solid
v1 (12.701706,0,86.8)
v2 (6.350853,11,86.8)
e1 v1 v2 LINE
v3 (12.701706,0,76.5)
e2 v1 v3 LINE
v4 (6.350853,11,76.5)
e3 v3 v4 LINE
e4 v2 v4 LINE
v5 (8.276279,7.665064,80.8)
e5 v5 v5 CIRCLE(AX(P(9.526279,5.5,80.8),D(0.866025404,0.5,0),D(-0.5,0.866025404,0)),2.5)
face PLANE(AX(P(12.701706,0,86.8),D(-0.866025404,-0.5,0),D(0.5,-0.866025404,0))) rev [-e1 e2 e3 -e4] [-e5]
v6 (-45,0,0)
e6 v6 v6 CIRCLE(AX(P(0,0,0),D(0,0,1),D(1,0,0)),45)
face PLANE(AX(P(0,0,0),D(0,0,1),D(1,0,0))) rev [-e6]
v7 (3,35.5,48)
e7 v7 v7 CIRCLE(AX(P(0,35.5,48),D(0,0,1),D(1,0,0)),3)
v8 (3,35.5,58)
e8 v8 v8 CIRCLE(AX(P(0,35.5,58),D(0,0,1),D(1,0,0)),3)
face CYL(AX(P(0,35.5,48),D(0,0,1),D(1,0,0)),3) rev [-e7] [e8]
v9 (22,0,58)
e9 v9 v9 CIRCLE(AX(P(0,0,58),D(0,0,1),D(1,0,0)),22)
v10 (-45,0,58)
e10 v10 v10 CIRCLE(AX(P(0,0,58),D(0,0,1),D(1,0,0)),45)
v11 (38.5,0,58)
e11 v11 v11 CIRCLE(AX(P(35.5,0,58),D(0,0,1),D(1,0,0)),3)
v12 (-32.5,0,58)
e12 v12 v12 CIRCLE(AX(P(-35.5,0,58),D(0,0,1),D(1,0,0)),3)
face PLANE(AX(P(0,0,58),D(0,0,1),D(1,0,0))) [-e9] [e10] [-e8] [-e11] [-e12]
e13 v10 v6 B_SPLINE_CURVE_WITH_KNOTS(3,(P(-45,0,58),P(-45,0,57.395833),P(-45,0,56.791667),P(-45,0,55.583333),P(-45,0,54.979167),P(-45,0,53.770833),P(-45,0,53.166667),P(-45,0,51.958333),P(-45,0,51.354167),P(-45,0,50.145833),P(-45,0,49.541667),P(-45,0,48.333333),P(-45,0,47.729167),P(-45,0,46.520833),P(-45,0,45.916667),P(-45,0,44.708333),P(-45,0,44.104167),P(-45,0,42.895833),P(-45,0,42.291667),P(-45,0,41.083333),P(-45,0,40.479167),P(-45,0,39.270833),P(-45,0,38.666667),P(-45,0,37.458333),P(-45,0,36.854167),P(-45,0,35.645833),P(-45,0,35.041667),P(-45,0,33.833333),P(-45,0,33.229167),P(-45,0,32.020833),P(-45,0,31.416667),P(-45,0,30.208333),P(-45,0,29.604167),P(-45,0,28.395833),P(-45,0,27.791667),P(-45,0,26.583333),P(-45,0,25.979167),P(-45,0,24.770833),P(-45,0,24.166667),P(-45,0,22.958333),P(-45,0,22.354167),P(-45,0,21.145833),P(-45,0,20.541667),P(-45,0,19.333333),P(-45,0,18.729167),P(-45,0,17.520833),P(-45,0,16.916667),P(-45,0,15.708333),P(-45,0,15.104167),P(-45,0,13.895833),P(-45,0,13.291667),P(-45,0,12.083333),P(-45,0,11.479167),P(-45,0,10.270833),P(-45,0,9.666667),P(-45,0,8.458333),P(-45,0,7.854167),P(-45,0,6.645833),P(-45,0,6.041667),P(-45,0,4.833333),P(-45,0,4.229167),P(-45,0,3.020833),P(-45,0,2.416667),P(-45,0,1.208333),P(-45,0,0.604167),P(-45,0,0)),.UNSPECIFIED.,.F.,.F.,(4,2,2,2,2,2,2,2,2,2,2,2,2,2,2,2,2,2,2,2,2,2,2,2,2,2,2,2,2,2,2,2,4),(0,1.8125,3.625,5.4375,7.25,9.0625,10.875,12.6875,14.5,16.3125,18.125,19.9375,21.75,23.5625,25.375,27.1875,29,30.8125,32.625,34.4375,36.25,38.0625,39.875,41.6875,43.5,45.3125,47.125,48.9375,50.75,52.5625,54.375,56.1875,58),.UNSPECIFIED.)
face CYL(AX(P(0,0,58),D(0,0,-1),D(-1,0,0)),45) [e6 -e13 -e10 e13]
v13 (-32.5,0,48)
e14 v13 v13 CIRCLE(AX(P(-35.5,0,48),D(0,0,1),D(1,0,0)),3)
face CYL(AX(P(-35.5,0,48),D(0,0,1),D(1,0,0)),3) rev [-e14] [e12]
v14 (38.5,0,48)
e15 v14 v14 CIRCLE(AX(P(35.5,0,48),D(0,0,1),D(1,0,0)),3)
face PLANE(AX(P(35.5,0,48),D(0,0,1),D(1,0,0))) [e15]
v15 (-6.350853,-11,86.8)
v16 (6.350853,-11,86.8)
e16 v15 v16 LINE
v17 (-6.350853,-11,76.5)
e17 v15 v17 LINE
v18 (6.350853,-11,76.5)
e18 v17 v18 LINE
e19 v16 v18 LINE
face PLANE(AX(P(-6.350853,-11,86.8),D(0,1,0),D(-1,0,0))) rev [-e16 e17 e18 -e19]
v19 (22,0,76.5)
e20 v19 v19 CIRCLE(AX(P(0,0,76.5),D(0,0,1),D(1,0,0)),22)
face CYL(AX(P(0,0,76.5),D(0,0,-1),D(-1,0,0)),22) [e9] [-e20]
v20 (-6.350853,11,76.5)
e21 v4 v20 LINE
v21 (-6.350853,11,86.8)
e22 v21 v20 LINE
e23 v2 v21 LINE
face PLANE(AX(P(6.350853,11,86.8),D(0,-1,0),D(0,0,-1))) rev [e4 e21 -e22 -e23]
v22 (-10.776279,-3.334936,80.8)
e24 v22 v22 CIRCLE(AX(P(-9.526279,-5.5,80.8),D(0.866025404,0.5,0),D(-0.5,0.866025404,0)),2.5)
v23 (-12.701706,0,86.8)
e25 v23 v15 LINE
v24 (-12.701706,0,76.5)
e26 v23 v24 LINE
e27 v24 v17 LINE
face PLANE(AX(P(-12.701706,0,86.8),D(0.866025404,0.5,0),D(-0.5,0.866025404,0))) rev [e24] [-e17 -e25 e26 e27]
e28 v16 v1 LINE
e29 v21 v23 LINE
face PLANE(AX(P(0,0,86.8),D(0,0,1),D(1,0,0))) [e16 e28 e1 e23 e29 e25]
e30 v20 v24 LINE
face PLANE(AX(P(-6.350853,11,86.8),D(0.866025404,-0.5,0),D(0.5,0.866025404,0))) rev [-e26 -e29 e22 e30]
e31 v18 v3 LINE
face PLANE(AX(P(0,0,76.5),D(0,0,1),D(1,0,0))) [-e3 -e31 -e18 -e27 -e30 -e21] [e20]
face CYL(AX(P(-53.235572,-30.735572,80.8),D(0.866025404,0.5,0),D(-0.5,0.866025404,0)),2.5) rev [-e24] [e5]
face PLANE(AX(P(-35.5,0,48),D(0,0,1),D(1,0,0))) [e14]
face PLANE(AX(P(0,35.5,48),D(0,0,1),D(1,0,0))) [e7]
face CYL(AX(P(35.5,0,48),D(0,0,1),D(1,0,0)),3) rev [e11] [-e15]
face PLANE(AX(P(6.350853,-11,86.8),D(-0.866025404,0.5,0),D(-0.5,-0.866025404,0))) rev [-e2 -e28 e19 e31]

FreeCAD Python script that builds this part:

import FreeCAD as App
import Part
import Sketcher

V = App.Vector
Q = App.Units.Quantity


def add_polygon(sketch, points):
    """Adds a closed chain of lines whose ends are joined by coincident constraints."""
    first, n = sketch.GeometryCount, len(points)
    for a, b in zip(points, points[1:] + points[:1]):
        sketch.addGeometry(Part.LineSegment(App.Vector(*a, 0), App.Vector(*b, 0)), False)
    for i in range(n):
        sketch.addConstraint(Sketcher.Constraint("Coincident", first + i, 2, first + (i + 1) % n, 1))

doc = App.newDocument("Part")
body = doc.addObject("PartDesign::Body", "Body")

sketch1 = body.newObject("Sketcher::SketchObject", "Sketch")
sketch1.AttachmentSupport = (doc.getObject("XY_Plane"), [""])
sketch1.MapMode = "FlatFace"
sketch1.addGeometry(Part.Circle(V(0, 0, 0), V(0, 0, 1), 45), False)
sketch1.addConstraint([
    Sketcher.Constraint("Coincident", 0, 3, -1, 1),
    Sketcher.Constraint("Diameter", 0, 90.0),
])
pad1 = body.newObject("PartDesign::Pad", "Pad")
pad1.Profile = sketch1
pad1.Length = 58

sketch2 = body.newObject("Sketcher::SketchObject", "Sketch001")
sketch2.AttachmentSupport = (doc.getObject("XY_Plane"), [""])
sketch2.MapMode = "FlatFace"
sketch2.AttachmentOffset = App.Placement(V(0, 0, 58), App.Rotation())
sketch2.addGeometry(Part.Circle(V(0, 0, 0), V(0, 0, 1), 22), False)
sketch2.addConstraint([
    Sketcher.Constraint("Coincident", 0, 3, -1, 1),
    Sketcher.Constraint("Diameter", 0, 44.0),
])
pad2 = body.newObject("PartDesign::Pad", "Pad001")
pad2.Profile = sketch2
pad2.Length = 18.5

sketch3 = body.newObject("Sketcher::SketchObject", "Sketch002")
sketch3.AttachmentSupport = (doc.getObject("XY_Plane"), [""])
sketch3.MapMode = "FlatFace"
sketch3.AttachmentOffset = App.Placement(V(0, 0, 76.5), App.Rotation())
add_polygon(sketch3, [(12.701706, 0), (6.350853, 11), (-6.350853, 11), (-12.701706, 0), (-6.350853, -11), (6.350853, -11)])
sketch3.addConstraint([
    Sketcher.Constraint("Horizontal", 1),
    Sketcher.Constraint("Horizontal", 4),
    Sketcher.Constraint("Symmetric", 0, 2, 3, 2, -1, 1),
    Sketcher.Constraint("Symmetric", 2, 2, 5, 2, -1, 1),
    Sketcher.Constraint("PointOnObject", 2, 2, -1),
    Sketcher.Constraint("Parallel", 2, 5),
    Sketcher.Constraint("Vertical", 1, 2, 3, 2),
    Sketcher.Constraint("Angle", 0, Q("120 deg")),
    Sketcher.Constraint("DistanceY", -1, 1, 0, 2, 11.0),
    Sketcher.Constraint("DistanceX", 1, 2, 1, 1, 12.701706),
])
pad3 = body.newObject("PartDesign::Pad", "Pad002")
pad3.Profile = sketch3
pad3.Length = 10.3

sketch4 = body.newObject("Sketcher::SketchObject", "Sketch003")
sketch4.Placement = App.Placement(V(9.526279, 5.5, 0), App.Rotation(V(0, 0, -1), V(-0.5, 0.866025404, 0), V(0.866025404, 0.5, 0), "ZXY"))
sketch4.addGeometry(Part.Circle(V(-80.8, 0, 0), V(0, 0, 1), 2.5), False)
sketch4.addConstraint([
    Sketcher.Constraint("PointOnObject", 0, 3, -1),
    Sketcher.Constraint("Diameter", 0, 5.0),
    Sketcher.Constraint("DistanceX", 0, 3, -1, 1, 80.8),
])
pocket1 = body.newObject("PartDesign::Pocket", "Pocket")
pocket1.Profile = sketch4
pocket1.Type = "ThroughAll"

sketch5 = body.newObject("Sketcher::SketchObject", "Sketch004")
sketch5.AttachmentSupport = (doc.getObject("XY_Plane"), [""])
sketch5.MapMode = "FlatFace"
sketch5.AttachmentOffset = App.Placement(V(0, 0, 58), App.Rotation())
sketch5.addGeometry([
    Part.Circle(V(-35.5, 0, 0), V(0, 0, 1), 3),
    Part.Circle(V(35.5, 0, 0), V(0, 0, 1), 3),
    Part.Circle(V(0, 35.5, 0), V(0, 0, 1), 3),
], False)
sketch5.addConstraint([
    Sketcher.Constraint("Equal", 0, 1),
    Sketcher.Constraint("Equal", 1, 2),
    Sketcher.Constraint("Symmetric", 0, 3, 1, 3, -1, 1),
    Sketcher.Constraint("PointOnObject", 0, 3, -1),
    Sketcher.Constraint("PointOnObject", 2, 3, -2),
    Sketcher.Constraint("Diameter", 0, 6.0),
    Sketcher.Constraint("DistanceX", 0, 3, 1, 3, 71.0),
    Sketcher.Constraint("DistanceY", -1, 1, 2, 3, 35.5),
])
pocket2 = body.newObject("PartDesign::Pocket", "Pocket001")
pocket2.Profile = sketch5
pocket2.Length = 10

doc.recompute()
